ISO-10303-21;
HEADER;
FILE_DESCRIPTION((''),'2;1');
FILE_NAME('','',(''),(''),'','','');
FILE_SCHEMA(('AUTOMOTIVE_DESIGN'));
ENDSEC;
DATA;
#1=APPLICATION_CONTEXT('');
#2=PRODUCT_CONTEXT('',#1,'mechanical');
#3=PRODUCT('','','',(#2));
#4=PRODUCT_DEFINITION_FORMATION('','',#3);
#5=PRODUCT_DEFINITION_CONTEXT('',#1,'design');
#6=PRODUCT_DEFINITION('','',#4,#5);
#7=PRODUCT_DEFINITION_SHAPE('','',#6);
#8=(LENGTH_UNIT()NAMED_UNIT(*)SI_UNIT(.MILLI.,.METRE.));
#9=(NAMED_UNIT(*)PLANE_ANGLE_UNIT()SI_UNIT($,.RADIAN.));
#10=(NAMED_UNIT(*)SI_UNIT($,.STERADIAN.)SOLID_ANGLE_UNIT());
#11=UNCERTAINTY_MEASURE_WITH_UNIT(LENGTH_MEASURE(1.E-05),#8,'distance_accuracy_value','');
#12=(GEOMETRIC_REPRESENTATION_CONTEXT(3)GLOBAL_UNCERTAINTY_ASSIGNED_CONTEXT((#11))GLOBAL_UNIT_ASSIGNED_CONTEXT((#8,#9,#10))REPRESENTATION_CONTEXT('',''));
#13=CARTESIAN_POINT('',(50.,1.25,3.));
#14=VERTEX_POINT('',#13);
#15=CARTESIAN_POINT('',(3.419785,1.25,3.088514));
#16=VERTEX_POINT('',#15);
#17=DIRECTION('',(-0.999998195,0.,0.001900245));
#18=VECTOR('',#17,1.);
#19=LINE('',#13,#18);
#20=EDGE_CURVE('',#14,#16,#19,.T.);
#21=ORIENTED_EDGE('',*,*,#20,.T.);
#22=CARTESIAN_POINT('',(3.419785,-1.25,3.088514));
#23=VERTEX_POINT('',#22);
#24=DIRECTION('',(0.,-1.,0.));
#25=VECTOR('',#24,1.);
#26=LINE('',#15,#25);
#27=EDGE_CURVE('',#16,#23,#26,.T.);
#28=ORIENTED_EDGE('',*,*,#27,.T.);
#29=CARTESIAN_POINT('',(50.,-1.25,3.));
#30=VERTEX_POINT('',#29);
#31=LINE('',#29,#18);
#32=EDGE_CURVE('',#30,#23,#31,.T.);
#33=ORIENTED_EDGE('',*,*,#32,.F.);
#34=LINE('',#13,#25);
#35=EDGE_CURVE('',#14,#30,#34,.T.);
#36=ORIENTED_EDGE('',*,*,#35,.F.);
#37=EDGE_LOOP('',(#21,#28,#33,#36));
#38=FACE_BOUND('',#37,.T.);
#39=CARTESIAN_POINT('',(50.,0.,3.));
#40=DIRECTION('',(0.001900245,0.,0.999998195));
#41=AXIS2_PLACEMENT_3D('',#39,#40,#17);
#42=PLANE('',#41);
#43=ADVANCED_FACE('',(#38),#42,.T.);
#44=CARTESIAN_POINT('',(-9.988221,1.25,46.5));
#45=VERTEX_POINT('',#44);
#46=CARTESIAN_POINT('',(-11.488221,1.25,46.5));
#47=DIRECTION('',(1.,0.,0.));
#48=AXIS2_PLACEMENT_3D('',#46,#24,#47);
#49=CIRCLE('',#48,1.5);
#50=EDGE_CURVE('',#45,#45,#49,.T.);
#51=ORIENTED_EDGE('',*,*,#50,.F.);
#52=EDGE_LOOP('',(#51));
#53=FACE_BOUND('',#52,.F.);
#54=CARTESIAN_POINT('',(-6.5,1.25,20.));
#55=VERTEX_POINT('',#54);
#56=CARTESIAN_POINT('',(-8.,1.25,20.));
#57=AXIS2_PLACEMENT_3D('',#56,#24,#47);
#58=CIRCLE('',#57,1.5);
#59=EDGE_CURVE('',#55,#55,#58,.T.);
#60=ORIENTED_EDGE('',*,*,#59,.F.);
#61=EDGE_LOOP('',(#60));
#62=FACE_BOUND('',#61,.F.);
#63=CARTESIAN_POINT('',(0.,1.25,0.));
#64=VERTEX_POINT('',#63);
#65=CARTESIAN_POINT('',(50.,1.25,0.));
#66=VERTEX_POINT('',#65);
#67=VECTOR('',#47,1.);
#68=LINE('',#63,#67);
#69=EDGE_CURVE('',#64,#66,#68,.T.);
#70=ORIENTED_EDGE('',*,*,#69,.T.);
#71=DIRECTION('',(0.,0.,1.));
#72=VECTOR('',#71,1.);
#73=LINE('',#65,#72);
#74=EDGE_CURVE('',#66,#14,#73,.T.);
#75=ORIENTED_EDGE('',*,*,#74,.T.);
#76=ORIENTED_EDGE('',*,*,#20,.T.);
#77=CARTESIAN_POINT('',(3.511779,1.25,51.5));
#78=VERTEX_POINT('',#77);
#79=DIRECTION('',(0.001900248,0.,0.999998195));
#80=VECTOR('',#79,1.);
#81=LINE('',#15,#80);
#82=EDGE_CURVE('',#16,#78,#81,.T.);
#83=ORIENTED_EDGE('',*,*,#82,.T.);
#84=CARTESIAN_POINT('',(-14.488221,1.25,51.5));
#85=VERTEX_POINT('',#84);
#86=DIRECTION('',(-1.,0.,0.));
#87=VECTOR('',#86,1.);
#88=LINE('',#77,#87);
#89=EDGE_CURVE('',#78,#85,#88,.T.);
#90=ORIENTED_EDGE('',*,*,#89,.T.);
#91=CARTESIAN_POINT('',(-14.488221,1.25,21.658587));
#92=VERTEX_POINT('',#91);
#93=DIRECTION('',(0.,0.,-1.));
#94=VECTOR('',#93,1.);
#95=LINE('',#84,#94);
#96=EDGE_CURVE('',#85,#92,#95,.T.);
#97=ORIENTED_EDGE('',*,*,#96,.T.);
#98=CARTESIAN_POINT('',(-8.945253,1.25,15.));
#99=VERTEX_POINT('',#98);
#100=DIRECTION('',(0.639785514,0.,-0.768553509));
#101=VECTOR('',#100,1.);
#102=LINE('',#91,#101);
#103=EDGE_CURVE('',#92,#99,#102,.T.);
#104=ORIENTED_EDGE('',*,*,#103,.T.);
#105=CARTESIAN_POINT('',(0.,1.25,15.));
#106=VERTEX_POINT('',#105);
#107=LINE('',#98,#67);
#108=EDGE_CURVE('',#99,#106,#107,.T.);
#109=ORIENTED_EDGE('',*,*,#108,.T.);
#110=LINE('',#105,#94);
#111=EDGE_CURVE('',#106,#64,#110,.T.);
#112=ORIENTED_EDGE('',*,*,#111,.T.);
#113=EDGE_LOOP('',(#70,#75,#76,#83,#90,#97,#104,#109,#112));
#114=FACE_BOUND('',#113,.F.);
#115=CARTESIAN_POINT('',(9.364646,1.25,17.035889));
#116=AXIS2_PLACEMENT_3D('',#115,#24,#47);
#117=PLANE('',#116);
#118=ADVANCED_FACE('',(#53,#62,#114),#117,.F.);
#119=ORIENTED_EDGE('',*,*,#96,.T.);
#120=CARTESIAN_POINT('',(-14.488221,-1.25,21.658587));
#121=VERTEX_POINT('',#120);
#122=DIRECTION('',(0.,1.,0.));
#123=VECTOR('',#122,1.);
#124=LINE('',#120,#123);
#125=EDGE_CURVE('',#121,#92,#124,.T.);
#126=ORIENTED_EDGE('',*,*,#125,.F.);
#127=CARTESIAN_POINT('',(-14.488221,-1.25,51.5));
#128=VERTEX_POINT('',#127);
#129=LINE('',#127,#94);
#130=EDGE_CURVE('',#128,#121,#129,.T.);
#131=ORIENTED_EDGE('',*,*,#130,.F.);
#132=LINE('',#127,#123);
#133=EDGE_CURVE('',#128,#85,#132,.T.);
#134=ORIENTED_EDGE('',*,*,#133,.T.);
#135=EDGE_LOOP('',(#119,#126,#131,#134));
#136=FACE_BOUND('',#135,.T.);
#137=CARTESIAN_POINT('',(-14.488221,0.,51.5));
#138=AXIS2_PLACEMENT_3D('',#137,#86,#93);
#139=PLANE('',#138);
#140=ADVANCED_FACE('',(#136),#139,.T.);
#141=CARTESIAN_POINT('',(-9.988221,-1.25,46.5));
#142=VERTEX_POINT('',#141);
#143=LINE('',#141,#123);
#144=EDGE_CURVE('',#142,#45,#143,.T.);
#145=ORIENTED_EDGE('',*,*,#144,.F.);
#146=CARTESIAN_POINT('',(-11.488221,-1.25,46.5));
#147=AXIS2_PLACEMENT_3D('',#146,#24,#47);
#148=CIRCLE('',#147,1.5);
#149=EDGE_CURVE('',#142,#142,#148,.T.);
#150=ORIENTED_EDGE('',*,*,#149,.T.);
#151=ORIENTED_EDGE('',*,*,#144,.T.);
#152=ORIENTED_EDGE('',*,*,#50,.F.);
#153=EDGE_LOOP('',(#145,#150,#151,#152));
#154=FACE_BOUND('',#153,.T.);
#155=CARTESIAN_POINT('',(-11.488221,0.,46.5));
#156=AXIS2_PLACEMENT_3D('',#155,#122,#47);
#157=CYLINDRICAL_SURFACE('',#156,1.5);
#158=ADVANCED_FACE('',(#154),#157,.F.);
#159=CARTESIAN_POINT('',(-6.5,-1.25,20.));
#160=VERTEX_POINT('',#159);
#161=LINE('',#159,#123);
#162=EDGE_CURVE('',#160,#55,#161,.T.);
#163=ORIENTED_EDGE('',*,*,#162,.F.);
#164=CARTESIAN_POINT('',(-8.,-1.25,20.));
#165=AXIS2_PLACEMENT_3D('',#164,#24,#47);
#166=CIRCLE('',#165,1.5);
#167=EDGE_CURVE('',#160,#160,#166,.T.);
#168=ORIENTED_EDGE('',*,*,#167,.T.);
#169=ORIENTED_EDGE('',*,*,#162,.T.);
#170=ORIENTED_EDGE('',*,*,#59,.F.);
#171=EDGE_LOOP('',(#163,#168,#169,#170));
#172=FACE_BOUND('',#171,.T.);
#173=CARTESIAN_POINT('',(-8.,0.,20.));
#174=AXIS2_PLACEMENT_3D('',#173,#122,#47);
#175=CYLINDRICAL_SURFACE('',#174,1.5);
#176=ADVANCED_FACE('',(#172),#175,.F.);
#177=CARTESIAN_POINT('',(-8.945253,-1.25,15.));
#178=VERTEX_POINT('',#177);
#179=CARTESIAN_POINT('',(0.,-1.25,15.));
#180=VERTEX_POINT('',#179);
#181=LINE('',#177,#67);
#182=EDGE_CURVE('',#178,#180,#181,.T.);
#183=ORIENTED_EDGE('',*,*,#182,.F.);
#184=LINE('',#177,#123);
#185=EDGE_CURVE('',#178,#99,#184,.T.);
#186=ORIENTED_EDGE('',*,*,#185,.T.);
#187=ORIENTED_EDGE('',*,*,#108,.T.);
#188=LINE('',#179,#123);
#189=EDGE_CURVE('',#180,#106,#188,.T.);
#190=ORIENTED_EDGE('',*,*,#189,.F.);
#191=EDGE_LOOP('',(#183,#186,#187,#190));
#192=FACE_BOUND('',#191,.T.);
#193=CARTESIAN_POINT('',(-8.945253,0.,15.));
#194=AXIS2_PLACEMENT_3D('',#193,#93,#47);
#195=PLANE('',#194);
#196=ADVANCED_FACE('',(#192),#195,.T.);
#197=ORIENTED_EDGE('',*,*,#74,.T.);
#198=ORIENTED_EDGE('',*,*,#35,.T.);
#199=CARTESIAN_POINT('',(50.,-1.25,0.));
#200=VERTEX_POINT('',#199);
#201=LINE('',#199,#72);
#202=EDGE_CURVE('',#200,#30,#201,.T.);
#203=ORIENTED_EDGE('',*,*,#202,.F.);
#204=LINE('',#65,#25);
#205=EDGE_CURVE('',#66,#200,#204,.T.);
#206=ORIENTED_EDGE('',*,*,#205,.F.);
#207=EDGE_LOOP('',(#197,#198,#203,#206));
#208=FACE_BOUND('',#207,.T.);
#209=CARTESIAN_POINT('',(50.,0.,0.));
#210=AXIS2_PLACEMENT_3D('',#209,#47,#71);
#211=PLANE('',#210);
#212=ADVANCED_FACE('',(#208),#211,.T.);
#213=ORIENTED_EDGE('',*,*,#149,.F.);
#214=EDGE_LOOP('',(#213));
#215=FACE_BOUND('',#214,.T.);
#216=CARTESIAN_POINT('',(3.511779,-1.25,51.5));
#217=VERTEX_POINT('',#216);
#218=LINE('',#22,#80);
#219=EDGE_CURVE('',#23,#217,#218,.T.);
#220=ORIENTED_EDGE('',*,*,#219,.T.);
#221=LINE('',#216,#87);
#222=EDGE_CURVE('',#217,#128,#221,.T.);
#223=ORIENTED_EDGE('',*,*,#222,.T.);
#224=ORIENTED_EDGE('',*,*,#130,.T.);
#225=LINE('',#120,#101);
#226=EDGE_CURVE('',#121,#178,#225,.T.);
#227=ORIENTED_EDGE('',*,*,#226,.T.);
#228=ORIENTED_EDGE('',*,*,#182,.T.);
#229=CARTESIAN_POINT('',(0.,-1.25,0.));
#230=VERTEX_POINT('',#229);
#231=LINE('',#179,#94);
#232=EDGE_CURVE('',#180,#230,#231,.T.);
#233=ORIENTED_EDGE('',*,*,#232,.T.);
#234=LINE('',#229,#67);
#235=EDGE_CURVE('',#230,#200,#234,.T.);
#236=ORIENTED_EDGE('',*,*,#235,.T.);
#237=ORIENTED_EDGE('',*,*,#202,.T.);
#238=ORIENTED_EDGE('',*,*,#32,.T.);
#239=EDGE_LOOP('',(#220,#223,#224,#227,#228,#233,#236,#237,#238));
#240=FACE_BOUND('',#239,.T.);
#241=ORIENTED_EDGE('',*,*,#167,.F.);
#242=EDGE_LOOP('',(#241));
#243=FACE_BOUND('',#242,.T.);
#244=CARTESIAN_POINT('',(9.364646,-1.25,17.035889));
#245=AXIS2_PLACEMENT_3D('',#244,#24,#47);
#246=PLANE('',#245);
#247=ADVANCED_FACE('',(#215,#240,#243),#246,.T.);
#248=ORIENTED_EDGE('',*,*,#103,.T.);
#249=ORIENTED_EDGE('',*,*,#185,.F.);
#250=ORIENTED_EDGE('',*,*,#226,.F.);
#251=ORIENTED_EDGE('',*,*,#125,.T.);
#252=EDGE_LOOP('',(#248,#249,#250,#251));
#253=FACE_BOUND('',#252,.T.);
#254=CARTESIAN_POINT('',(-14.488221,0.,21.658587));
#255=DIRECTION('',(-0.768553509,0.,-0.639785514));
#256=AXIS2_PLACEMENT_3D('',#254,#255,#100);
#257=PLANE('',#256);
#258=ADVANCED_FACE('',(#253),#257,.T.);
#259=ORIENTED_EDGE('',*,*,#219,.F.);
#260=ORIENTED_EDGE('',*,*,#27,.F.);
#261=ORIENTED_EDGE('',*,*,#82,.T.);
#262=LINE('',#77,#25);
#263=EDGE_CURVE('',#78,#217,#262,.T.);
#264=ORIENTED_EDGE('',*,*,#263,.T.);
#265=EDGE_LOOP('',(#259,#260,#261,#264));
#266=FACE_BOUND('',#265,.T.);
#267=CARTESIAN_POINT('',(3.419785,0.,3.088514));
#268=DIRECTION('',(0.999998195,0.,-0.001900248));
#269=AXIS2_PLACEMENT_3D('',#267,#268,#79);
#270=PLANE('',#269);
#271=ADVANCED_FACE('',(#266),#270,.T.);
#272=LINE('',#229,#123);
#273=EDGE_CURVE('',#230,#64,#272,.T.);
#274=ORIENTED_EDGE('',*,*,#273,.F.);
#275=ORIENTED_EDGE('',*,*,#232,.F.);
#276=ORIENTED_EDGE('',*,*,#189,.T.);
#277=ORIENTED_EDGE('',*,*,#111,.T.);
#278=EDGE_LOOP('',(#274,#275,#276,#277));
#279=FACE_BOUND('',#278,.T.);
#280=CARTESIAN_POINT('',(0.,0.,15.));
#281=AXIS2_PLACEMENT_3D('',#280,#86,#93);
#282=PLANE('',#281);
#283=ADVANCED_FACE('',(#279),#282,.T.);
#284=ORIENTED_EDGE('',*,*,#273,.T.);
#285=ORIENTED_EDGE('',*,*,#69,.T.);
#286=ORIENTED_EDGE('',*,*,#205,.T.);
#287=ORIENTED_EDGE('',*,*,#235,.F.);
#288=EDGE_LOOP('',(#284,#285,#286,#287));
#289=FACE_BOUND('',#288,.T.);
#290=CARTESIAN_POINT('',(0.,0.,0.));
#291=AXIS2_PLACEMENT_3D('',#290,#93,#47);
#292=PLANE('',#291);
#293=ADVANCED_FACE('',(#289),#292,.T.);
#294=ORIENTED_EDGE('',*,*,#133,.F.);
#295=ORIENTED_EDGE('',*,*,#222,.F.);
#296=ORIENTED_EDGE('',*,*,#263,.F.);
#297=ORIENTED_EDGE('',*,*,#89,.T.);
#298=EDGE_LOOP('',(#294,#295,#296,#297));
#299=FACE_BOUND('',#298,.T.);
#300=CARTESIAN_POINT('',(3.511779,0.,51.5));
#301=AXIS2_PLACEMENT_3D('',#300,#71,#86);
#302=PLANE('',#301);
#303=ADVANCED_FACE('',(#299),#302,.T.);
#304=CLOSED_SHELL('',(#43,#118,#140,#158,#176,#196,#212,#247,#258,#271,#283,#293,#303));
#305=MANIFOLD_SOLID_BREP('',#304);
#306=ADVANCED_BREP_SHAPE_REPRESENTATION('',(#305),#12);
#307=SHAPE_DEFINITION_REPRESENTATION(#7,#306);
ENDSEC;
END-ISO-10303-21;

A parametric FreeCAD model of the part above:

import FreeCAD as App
import Part
import Sketcher
from FreeCAD import Vector

doc = App.newDocument("Part")
body = doc.addObject("PartDesign::Body", "Body")

sketch1 = body.newObject("Sketcher::SketchObject", "Sketch")
sketch1.AttachmentSupport = (doc.getObject("XZ_Plane"), [""])
sketch1.MapMode = "FlatFace"
sketch1.addGeometry([
    Part.LineSegment(Vector(0, 0, 0), Vector(50, 0, 0)),
    Part.LineSegment(Vector(50, 0, 0), Vector(50, 3, 0)),
    Part.LineSegment(Vector(50, 3, 0), Vector(3.419785, 3.088514, 0)),
    Part.LineSegment(Vector(3.419785, 3.088514, 0), Vector(3.511779, 51.5, 0)),
    Part.LineSegment(Vector(3.511779, 51.5, 0), Vector(-14.488221, 51.5, 0)),
    Part.LineSegment(Vector(-14.488221, 51.5, 0), Vector(-14.488221, 21.658587, 0)),
    Part.LineSegment(Vector(-14.488221, 21.658587, 0), Vector(-8.945253, 15, 0)),
    Part.LineSegment(Vector(-8.945253, 15, 0), Vector(0, 15, 0)),
    Part.LineSegment(Vector(0, 15, 0), Vector(0, 0, 0)),
    Part.Circle(Vector(-8, 20, 0), Vector(0, 0, 1), 1.5),
    Part.Circle(Vector(-11.488221, 46.5, 0), Vector(0, 0, 1), 1.5),
], False)
sketch1.addConstraint([
    Sketcher.Constraint("Coincident", 0, 2, 1, 1),
    Sketcher.Constraint("Coincident", 1, 2, 2, 1),
    Sketcher.Constraint("Coincident", 2, 2, 3, 1),
    Sketcher.Constraint("Coincident", 3, 2, 4, 1),
    Sketcher.Constraint("Coincident", 4, 2, 5, 1),
    Sketcher.Constraint("Coincident", 5, 2, 6, 1),
    Sketcher.Constraint("Coincident", 6, 2, 7, 1),
    Sketcher.Constraint("Coincident", 7, 2, 8, 1),
    Sketcher.Constraint("Coincident", 8, 2, 0, 1),
    Sketcher.Constraint("Horizontal", 0),
    Sketcher.Constraint("Vertical", 1),
    Sketcher.Constraint("Horizontal", 4),
    Sketcher.Constraint("Vertical", 5),
    Sketcher.Constraint("Horizontal", 7),
    Sketcher.Constraint("Vertical", 8),
    Sketcher.Constraint("Coincident", 8, 2, -1, 1),
    Sketcher.Constraint("Equal", 9, 10),
    Sketcher.Constraint("Perpendicular", 2, 3),
    Sketcher.Constraint("Diameter", 9, 3.0),
    Sketcher.Constraint("DistanceX", 0, 1, 0, 2, 50.0),
    Sketcher.Constraint("DistanceX", 4, 2, 4, 1, 18.0),
    Sketcher.Constraint("DistanceY", 1, 1, 1, 2, 3.0),
    Sketcher.Constraint("DistanceY", 8, 2, 8, 1, 15.0),
    Sketcher.Constraint("DistanceX", 9, 3, -1, 1, 8.0),
    Sketcher.Constraint("DistanceY", -1, 1, 9, 3, 20.0),
    Sketcher.Constraint("DistanceX", 10, 3, 3, 2, 15.0),
    Sketcher.Constraint("DistanceY", 10, 3, 3, 2, 5.0),
    Sketcher.Constraint("DistanceY", -1, 1, 10, 3, 46.5),
    Sketcher.Constraint("Distance", 2, 46.580299),
    Sketcher.Constraint("Distance", 6, 8.663791),
    Sketcher.Constraint("DistanceX", 7, 1, 7, 2, 8.945253),
    Sketcher.Constraint("DistanceY", 5, 2, 5, 1, 29.841413),
])
pad1 = body.newObject("PartDesign::Pad", "Pad")
pad1.Profile = sketch1
pad1.Length = 2.5
pad1.Midplane = True

doc.recompute()
